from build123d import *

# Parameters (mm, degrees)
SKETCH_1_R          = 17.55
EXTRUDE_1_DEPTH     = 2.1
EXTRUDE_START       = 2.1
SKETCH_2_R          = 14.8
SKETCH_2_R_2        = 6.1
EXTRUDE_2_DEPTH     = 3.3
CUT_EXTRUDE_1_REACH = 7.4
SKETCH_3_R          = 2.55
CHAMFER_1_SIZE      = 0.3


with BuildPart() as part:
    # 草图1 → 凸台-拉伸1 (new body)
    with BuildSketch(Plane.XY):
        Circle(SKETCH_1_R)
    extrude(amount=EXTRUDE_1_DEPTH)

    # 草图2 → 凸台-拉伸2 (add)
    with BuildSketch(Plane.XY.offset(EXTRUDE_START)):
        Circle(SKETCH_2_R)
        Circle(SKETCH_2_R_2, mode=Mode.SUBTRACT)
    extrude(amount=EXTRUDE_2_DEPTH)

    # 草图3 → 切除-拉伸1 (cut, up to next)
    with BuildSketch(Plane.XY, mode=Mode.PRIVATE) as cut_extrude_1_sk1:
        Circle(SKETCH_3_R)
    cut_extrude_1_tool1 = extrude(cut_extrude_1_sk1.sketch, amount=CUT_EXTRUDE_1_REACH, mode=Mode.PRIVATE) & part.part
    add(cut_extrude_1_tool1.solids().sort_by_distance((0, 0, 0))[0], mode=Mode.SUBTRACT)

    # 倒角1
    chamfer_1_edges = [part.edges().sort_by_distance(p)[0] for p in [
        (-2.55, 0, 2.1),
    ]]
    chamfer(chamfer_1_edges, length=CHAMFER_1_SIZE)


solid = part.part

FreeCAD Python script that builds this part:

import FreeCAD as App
import Part
import Sketcher
from FreeCAD import Vector


def edges_at(feature, points):
    """Names of the edges that pass closest to the given points."""
    edges = feature.Shape.Edges
    near = lambda p: min(range(len(edges)), key=lambda i: edges[i].distToShape(Part.Vertex(*p))[0])
    return sorted({f"Edge{near(p) + 1}" for p in points})

doc = App.newDocument("Part")
body = doc.addObject("PartDesign::Body", "Body")

sketch1 = doc.addObject("Sketcher::SketchObject", "Sketch")
body.addObject(sketch1)
sketch1.AttachmentSupport = (doc.XY_Plane, [""])
sketch1.MapMode = "FlatFace"
sketch1.addGeometry(Part.Circle(Vector(0, 0, 0), Vector(0, 0, 1), 18), False)
sketch1.addConstraint([
    Sketcher.Constraint("Coincident", 0, 3, -1, 1),
    Sketcher.Constraint("Diameter", 0, 35.1),
])
pad1 = doc.addObject("PartDesign::Pad", "Pad")
body.addObject(pad1)
pad1.Profile = sketch1
pad1.Length = 2.1

sketch2 = doc.addObject("Sketcher::SketchObject", "Sketch001")
body.addObject(sketch2)
sketch2.AttachmentSupport = (doc.XY_Plane, [""])
sketch2.MapMode = "FlatFace"
sketch2.AttachmentOffset = App.Placement(Vector(0, 0, 2.1), App.Rotation())
sketch2.addGeometry([
    Part.Circle(Vector(0, 0, 0), Vector(0, 0, 1), 15),
    Part.Circle(Vector(0, 0, 0), Vector(0, 0, 1), 6),
], False)
sketch2.addConstraint([
    Sketcher.Constraint("Coincident", 0, 3, -1, 1),
    Sketcher.Constraint("Coincident", 1, 3, -1, 1),
    Sketcher.Constraint("Diameter", 0, 29.6),
    Sketcher.Constraint("Diameter", 1, 12.2),
])
pad2 = doc.addObject("PartDesign::Pad", "Pad001")
body.addObject(pad2)
pad2.Profile = sketch2
pad2.Length = 3.3

sketch3 = doc.addObject("Sketcher::SketchObject", "Sketch002")
body.addObject(sketch3)
sketch3.AttachmentSupport = (doc.XY_Plane, [""])
sketch3.MapMode = "FlatFace"
sketch3.addGeometry(Part.Circle(Vector(0, 0, 0), Vector(0, 0, 1), 2.5), False)
sketch3.addConstraint([
    Sketcher.Constraint("Coincident", 0, 3, -1, 1),
    Sketcher.Constraint("Diameter", 0, 5.1),
])
pocket1 = doc.addObject("PartDesign::Pocket", "Pocket")
body.addObject(pocket1)
pocket1.Profile = sketch3
pocket1.Type = "UpToFirst"
pocket1.Reversed = True
doc.recompute()

chamfer = doc.addObject("PartDesign::Chamfer", "Chamfer")
body.addObject(chamfer)
chamfer.Base = (pocket1, edges_at(pocket1, [(-2.55, 0, 2.1)]))
chamfer.Size = 0.3

doc.recompute()
